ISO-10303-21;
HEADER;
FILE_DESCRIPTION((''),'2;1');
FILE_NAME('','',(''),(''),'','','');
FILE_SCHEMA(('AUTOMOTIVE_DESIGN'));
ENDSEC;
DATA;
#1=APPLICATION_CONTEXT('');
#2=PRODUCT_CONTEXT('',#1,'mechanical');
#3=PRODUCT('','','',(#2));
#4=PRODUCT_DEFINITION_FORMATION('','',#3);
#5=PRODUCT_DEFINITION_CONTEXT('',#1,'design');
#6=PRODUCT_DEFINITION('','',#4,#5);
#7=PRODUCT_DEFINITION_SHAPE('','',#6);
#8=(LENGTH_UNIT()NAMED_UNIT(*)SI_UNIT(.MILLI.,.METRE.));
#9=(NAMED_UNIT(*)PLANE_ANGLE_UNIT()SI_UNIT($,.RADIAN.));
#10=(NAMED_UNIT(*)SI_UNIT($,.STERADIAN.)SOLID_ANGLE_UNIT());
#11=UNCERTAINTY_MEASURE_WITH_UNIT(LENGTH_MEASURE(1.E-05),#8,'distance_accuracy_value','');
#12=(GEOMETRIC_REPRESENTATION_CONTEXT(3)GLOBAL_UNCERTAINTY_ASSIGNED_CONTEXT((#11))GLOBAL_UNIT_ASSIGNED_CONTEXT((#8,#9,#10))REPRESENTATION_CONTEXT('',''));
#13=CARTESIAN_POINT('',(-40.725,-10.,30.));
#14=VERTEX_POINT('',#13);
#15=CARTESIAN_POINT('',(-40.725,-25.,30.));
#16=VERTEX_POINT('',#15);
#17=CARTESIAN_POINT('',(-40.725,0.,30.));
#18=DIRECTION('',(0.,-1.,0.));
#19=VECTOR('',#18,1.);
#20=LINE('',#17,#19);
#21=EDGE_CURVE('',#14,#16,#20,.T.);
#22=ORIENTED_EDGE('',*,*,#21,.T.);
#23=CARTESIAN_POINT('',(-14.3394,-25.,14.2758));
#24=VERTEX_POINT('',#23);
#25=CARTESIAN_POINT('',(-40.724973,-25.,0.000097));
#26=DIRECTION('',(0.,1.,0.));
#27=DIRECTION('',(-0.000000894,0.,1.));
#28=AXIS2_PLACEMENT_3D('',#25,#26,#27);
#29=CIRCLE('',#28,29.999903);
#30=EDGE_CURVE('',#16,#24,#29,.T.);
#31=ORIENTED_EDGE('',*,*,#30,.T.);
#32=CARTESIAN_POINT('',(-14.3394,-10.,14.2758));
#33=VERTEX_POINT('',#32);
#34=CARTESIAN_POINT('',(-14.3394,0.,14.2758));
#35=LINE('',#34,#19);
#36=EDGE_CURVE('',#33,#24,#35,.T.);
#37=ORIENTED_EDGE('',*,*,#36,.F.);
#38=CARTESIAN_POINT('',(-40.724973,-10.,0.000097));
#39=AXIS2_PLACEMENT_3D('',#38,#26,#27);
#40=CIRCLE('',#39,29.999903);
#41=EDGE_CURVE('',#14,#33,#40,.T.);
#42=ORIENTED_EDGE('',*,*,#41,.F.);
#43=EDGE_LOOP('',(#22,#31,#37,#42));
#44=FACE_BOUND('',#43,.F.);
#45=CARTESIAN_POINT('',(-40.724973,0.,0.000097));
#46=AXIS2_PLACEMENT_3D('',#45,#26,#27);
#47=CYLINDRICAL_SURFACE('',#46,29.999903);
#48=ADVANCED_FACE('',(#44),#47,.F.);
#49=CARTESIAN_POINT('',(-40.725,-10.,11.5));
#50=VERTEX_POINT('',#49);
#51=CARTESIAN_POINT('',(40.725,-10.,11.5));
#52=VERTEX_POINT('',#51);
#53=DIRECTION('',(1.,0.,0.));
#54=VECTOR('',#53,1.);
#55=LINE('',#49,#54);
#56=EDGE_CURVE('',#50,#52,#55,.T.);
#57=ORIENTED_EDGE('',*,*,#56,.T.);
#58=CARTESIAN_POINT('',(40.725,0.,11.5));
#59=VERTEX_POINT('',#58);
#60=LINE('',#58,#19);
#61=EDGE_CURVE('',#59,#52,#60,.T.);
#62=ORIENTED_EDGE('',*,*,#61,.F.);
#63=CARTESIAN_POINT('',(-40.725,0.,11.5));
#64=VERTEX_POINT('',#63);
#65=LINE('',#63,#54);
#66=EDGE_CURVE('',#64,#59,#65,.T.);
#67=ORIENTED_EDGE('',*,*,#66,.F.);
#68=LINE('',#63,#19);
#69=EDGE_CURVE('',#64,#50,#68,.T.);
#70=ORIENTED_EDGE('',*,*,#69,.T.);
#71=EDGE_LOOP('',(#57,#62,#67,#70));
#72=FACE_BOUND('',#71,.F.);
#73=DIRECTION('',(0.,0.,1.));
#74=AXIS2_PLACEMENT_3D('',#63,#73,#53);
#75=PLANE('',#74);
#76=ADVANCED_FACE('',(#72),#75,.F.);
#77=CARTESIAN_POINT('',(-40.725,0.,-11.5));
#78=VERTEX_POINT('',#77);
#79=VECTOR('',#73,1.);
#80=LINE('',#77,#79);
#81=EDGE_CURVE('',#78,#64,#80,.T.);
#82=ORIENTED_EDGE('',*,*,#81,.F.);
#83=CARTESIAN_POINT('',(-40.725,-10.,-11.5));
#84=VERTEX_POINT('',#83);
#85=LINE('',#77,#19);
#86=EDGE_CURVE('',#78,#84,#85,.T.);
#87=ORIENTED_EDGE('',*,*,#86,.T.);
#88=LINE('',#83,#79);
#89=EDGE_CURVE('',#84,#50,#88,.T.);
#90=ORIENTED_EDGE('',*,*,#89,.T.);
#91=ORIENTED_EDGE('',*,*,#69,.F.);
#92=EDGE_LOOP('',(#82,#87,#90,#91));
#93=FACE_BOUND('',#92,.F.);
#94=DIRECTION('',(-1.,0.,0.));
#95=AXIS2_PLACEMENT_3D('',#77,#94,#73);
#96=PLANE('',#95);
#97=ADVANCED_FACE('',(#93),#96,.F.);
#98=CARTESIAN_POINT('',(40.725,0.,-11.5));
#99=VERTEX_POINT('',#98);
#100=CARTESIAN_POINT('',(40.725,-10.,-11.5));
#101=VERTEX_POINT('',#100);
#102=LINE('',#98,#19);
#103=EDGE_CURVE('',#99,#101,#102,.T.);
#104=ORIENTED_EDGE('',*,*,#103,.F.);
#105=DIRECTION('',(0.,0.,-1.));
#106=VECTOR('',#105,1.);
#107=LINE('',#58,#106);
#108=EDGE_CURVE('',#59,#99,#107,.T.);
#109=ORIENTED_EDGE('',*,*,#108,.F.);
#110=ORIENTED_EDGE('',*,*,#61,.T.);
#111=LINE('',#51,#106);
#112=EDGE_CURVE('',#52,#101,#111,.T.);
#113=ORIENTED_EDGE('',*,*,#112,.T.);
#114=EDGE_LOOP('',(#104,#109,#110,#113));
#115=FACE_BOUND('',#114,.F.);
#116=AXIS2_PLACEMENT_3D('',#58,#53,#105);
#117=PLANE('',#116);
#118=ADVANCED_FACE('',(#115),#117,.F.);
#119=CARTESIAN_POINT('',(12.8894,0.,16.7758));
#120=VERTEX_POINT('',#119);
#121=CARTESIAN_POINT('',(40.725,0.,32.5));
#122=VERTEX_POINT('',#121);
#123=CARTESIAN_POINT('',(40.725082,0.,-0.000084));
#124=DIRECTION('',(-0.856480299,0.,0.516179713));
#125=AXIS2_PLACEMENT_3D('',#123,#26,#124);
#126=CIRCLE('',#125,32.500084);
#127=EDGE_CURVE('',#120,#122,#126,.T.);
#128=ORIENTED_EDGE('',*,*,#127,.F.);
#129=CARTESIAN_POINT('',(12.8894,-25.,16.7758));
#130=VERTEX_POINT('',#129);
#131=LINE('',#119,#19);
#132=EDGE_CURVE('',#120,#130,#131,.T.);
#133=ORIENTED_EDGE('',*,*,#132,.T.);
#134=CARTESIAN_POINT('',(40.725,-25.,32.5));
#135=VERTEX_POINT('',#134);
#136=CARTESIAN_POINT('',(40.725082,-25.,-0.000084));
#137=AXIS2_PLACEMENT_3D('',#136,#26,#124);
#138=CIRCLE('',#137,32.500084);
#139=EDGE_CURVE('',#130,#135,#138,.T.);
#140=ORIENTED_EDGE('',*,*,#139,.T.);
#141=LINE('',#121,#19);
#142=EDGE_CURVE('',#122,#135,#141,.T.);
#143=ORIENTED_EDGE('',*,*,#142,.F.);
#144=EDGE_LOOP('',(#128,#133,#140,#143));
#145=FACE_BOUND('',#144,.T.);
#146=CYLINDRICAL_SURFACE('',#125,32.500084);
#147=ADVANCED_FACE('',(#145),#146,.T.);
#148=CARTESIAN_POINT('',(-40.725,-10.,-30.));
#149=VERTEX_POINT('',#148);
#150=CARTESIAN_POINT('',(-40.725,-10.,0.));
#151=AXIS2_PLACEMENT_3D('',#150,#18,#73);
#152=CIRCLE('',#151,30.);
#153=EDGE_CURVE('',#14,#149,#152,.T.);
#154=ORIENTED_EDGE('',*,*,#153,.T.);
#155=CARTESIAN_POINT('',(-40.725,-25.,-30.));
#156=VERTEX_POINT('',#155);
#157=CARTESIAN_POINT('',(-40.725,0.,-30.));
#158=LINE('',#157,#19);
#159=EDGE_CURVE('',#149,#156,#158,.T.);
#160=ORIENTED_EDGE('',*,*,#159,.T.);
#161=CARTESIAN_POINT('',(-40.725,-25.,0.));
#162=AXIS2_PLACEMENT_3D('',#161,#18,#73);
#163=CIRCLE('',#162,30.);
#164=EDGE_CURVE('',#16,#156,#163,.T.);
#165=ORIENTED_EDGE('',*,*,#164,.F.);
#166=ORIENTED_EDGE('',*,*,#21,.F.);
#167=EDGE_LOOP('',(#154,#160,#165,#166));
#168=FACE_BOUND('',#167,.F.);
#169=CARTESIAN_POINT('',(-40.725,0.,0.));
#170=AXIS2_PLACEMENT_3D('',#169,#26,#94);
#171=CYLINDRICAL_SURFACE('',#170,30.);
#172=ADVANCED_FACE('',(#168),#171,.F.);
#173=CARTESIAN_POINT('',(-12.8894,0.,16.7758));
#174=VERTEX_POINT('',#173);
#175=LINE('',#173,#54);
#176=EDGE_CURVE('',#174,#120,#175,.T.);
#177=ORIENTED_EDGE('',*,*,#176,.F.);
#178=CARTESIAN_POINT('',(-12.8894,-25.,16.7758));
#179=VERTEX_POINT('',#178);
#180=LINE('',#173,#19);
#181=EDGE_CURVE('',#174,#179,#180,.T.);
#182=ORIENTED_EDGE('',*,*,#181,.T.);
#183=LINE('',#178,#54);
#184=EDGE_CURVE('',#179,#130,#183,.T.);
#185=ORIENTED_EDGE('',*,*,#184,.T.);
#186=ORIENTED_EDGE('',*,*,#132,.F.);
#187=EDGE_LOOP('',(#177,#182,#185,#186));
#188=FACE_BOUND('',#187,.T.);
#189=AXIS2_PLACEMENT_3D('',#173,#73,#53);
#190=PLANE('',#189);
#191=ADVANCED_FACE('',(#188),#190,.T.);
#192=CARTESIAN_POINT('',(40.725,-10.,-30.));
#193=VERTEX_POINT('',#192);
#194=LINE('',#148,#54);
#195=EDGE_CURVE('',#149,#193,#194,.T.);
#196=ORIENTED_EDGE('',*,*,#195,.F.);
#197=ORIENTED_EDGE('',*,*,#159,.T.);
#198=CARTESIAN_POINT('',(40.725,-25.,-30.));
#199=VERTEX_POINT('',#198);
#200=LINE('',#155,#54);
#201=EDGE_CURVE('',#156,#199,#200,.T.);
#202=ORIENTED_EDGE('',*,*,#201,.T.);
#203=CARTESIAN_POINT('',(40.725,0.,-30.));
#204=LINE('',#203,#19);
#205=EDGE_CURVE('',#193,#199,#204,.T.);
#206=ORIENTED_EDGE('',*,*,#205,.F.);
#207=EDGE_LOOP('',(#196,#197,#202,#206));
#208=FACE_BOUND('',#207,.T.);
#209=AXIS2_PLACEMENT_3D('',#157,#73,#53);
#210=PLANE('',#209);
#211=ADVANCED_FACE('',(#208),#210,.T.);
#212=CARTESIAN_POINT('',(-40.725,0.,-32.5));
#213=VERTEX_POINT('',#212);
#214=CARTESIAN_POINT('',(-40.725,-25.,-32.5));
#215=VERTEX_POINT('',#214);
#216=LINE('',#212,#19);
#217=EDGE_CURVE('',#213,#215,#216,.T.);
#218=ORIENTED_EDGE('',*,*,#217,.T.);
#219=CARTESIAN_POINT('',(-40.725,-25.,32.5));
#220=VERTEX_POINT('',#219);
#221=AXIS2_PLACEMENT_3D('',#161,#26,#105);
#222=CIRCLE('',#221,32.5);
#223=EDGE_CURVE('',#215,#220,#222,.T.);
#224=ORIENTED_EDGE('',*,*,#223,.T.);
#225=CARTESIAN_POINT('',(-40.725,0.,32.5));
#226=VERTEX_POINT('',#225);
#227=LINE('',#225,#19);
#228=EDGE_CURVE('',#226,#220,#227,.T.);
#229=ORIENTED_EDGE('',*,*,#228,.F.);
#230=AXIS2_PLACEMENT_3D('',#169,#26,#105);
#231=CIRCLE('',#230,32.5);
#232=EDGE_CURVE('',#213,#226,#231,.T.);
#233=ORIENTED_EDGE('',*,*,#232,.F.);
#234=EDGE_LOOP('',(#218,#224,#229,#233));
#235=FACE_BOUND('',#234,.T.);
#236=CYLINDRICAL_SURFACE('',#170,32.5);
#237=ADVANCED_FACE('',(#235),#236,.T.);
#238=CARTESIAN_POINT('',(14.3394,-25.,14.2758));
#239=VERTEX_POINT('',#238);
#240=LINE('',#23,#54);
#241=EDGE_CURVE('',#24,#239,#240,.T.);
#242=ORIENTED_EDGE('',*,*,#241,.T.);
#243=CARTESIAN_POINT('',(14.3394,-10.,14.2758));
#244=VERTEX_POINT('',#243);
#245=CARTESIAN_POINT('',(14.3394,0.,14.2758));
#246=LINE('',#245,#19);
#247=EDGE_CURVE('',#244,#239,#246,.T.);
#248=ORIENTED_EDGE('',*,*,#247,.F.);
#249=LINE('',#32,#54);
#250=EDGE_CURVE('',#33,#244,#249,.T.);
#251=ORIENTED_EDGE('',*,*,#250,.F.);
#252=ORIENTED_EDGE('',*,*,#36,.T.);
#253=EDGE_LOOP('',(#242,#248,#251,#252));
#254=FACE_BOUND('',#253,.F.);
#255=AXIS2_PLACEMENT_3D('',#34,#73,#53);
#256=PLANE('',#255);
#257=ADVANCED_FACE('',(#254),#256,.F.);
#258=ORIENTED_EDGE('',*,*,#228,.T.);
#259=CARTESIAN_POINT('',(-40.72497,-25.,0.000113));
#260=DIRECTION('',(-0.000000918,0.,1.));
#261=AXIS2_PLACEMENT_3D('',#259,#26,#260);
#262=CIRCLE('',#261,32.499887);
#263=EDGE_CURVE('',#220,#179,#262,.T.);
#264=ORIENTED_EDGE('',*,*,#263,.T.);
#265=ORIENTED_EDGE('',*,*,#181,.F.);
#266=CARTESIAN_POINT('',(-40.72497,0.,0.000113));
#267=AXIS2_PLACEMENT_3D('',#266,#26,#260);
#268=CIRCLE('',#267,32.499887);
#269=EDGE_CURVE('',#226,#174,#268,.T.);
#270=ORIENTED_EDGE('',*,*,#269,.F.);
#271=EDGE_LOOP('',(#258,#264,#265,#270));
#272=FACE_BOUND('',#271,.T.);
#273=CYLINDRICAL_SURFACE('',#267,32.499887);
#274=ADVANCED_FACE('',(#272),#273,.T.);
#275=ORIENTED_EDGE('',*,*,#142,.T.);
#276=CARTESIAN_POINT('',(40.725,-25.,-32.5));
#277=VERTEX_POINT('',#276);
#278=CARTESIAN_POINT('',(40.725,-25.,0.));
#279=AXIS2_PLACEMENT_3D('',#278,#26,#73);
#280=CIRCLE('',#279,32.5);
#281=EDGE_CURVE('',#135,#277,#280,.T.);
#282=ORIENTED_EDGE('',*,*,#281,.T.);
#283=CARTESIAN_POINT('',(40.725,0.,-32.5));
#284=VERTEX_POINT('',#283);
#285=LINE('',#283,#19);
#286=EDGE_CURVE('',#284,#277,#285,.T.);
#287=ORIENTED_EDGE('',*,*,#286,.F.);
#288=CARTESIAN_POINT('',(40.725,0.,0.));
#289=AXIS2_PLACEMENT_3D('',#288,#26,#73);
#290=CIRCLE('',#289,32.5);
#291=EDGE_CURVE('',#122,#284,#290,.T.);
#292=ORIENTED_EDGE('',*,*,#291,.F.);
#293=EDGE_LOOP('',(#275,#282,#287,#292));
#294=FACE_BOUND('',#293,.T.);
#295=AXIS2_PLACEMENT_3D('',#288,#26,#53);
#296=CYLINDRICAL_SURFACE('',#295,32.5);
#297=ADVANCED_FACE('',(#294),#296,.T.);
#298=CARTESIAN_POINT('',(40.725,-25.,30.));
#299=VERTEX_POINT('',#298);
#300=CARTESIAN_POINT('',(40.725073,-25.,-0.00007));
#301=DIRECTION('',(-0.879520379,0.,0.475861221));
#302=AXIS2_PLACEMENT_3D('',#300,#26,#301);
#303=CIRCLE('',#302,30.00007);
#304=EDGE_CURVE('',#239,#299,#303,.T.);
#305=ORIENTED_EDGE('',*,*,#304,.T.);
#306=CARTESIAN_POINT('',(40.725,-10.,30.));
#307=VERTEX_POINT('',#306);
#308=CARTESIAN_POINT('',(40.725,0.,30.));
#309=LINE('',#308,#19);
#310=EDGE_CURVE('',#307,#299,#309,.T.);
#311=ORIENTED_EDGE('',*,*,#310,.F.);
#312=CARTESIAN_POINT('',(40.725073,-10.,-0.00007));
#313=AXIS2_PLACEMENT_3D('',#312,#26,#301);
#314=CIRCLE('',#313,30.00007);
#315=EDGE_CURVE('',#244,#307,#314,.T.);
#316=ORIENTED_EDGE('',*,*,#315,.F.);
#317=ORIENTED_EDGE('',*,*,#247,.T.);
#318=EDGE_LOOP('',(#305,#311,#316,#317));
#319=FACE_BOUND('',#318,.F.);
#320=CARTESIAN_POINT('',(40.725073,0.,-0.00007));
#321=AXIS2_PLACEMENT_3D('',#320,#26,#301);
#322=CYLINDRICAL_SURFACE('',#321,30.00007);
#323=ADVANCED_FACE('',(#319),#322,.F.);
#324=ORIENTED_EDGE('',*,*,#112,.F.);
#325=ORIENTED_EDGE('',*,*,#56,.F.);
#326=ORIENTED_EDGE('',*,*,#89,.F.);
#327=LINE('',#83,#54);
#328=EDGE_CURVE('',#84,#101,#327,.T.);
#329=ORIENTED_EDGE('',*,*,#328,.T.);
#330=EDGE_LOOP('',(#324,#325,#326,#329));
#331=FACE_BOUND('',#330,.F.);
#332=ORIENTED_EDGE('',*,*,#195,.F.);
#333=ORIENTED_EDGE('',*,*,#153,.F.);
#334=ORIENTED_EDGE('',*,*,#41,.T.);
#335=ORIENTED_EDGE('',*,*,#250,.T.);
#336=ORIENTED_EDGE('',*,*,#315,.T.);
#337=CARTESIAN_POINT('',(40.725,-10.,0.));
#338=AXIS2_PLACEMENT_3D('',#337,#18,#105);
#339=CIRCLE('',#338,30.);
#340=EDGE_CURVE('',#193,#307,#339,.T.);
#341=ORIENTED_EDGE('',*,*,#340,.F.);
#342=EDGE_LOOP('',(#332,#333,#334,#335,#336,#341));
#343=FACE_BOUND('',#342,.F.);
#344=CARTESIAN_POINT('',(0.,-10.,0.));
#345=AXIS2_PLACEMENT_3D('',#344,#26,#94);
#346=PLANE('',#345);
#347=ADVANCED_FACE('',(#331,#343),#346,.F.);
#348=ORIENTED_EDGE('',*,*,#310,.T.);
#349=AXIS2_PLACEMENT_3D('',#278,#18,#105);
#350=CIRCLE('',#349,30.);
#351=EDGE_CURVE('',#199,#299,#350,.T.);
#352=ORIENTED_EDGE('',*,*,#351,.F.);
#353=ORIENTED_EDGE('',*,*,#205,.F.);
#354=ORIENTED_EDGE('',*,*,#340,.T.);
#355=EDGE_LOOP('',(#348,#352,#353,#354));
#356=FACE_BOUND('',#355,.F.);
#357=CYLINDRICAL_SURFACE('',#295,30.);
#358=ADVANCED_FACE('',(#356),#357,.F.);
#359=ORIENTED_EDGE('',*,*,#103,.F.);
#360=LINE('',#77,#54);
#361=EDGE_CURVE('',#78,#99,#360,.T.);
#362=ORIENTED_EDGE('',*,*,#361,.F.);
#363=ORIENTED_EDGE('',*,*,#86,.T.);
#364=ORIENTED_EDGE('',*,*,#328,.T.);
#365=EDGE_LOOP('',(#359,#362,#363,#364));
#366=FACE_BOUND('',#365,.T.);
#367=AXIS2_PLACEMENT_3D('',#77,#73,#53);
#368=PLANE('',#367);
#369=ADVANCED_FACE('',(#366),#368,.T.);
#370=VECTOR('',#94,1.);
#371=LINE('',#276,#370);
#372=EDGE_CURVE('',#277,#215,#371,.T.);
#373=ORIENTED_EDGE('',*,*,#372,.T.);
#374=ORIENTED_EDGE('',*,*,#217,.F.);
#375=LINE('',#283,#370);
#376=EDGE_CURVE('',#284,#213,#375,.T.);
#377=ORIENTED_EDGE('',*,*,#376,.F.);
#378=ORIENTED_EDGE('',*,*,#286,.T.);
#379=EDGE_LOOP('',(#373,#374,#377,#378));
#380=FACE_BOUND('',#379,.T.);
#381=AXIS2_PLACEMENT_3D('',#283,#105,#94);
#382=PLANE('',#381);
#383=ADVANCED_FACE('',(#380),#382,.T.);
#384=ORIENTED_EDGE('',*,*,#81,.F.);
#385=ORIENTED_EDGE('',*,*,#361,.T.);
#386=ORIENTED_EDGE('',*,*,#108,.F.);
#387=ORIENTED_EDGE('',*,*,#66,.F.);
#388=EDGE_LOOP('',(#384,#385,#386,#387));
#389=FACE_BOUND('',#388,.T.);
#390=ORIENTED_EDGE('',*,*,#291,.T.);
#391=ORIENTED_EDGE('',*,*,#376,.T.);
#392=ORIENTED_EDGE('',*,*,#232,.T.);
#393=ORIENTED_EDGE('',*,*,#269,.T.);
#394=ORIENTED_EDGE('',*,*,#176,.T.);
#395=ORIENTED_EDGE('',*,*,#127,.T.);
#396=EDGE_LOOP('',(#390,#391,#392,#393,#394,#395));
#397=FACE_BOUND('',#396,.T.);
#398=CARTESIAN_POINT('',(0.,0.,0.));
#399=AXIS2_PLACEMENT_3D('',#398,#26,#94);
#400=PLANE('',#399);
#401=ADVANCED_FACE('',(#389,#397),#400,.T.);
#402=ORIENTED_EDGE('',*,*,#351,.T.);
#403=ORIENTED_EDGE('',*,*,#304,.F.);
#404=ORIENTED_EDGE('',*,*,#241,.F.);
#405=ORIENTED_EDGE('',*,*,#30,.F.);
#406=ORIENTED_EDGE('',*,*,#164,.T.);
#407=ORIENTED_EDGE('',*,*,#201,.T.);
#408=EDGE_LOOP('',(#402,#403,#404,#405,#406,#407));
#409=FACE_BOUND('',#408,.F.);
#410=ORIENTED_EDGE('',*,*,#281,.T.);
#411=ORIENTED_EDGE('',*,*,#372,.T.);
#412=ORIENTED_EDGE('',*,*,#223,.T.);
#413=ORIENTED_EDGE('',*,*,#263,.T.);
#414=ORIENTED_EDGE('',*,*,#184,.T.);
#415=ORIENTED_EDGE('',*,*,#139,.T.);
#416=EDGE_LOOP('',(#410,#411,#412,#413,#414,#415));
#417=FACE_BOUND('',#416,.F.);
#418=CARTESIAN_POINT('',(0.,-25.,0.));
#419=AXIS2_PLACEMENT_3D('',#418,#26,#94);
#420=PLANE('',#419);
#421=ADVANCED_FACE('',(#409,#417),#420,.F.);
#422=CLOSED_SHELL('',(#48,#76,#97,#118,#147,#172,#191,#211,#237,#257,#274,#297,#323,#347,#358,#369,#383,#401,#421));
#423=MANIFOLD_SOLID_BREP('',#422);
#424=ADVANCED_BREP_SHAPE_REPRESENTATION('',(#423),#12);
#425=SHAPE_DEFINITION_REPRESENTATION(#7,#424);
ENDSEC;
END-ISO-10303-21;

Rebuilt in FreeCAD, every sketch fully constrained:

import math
import FreeCAD as App
import Part
import Sketcher
from FreeCAD import Vector

doc = App.newDocument("Part")
body = doc.addObject("PartDesign::Body", "Body")

# Sketch on XZ plane
sketch1 = body.newObject("Sketcher::SketchObject", "Sketch")
sketch1.AttachmentSupport = (doc.getObject("XZ_Plane"), [""])
sketch1.MapMode = "FlatFace"
sketch1.addGeometry([
    Part.LineSegment(Vector(41, -30, 0), Vector(-41, -30, 0)),  # 0
    Part.ArcOfCircle(Part.Circle(Vector(-41, 0, 0), Vector(0, 0, 1), 30), math.radians(90), math.radians(270)),  # 1
    Part.ArcOfCircle(Part.Circle(Vector(-41, 0, 0), Vector(0, 0, 1), 30), math.radians(28), math.radians(90)),  # 2
    Part.LineSegment(Vector(-14, 14, 0), Vector(14, 14, 0)),  # 3
    Part.ArcOfCircle(Part.Circle(Vector(41, 0, 0), Vector(0, 0, 1), 30), math.radians(90), math.radians(152)),  # 4
    Part.ArcOfCircle(Part.Circle(Vector(41, 0, 0), Vector(0, 0, 1), 30), math.radians(-90), math.radians(90)),  # 5
    Part.LineSegment(Vector(-41, 12, 0), Vector(-41, -12, 0)),  # 6
    Part.LineSegment(Vector(-41, -12, 0), Vector(41, -12, 0)),  # 7
    Part.LineSegment(Vector(41, -12, 0), Vector(41, 12, 0)),  # 8
    Part.LineSegment(Vector(41, 12, 0), Vector(-41, 12, 0)),  # 9
], False)
sketch1.addConstraint([
    Sketcher.Constraint("Tangent", 0, 2, 1, 2),
    Sketcher.Constraint("Tangent", 1, 1, 2, 2),
    Sketcher.Constraint("Coincident", 2, 1, 3, 1),
    Sketcher.Constraint("Coincident", 3, 2, 4, 2),
    Sketcher.Constraint("Tangent", 4, 1, 5, 2),
    Sketcher.Constraint("Tangent", 5, 1, 0, 1),
    Sketcher.Constraint("Coincident", 6, 2, 7, 1),
    Sketcher.Constraint("Coincident", 7, 2, 8, 1),
    Sketcher.Constraint("Coincident", 8, 2, 9, 1),
    Sketcher.Constraint("Coincident", 9, 2, 6, 1),
    Sketcher.Constraint("Horizontal", 0),
    Sketcher.Constraint("Horizontal", 3),
    Sketcher.Constraint("Vertical", 6),
    Sketcher.Constraint("Horizontal", 7),
    Sketcher.Constraint("Vertical", 8),
    Sketcher.Constraint("Horizontal", 9),
    Sketcher.Constraint("Equal", 1, 2),
    Sketcher.Constraint("Equal", 2, 4),
    Sketcher.Constraint("Equal", 4, 5),
    Sketcher.Constraint("Symmetric", 1, 3, 4, 3, -1, 1),
    Sketcher.Constraint("Symmetric", 6, 2, 8, 2, -1, 1),
    Sketcher.Constraint("Vertical", 0, 2, 1, 1),
    Sketcher.Constraint("Vertical", 5, 3, 4, 1),
    Sketcher.Constraint("Vertical", 1, 1, 6, 2),
    Sketcher.Constraint("Radius", 1, 30.0),
    Sketcher.Constraint("DistanceY", 6, 2, -1, 1, 11.5),
    Sketcher.Constraint("DistanceX", 1, 3, -1, 1, 40.725),
    Sketcher.Constraint("DistanceY", 2, 1, 1, 1, 15.7242),
])
pad1 = body.newObject("PartDesign::Pad", "Pad")
pad1.Profile = sketch1
pad1.Length = 10

# Sketch on XZ plane
sketch2 = body.newObject("Sketcher::SketchObject", "Sketch001")
sketch2.AttachmentSupport = (doc.getObject("XZ_Plane"), [""])
sketch2.MapMode = "FlatFace"
sketch2.addGeometry([
    Part.ArcOfCircle(Part.Circle(Vector(-41, 0, 0), Vector(0, 0, 1), 32), math.radians(90), math.radians(270)),  # 0
    Part.ArcOfCircle(Part.Circle(Vector(-41, 0, 0), Vector(0, 0, 1), 32), math.radians(31), math.radians(90)),  # 1
    Part.LineSegment(Vector(-13, 17, 0), Vector(13, 17, 0)),  # 2
    Part.ArcOfCircle(Part.Circle(Vector(41, 0, 0), Vector(0, 0, 1), 32), math.radians(90), math.radians(149)),  # 3
    Part.ArcOfCircle(Part.Circle(Vector(41, 0, 0), Vector(0, 0, 1), 32), math.radians(-90), math.radians(90)),  # 4
    Part.LineSegment(Vector(41, -32, 0), Vector(-41, -32, 0)),  # 5
    Part.ArcOfCircle(Part.Circle(Vector(-41, 0, 0), Vector(0, 0, 1), 30), math.radians(90), math.radians(270)),  # 6
    Part.LineSegment(Vector(-41, -30, 0), Vector(41, -30, 0)),  # 7
    Part.ArcOfCircle(Part.Circle(Vector(41, 0, 0), Vector(0, 0, 1), 30), math.radians(-90), math.radians(90)),  # 8
    Part.ArcOfCircle(Part.Circle(Vector(41, 0, 0), Vector(0, 0, 1), 30), math.radians(90), math.radians(152)),  # 9
    Part.LineSegment(Vector(14, 14, 0), Vector(-14, 14, 0)),  # 10
    Part.ArcOfCircle(Part.Circle(Vector(-41, 0, 0), Vector(0, 0, 1), 30), math.radians(28), math.radians(90)),  # 11
], False)
sketch2.addConstraint([
    Sketcher.Constraint("Tangent", 0, 1, 1, 2),
    Sketcher.Constraint("Coincident", 1, 1, 2, 1),
    Sketcher.Constraint("Coincident", 2, 2, 3, 2),
    Sketcher.Constraint("Tangent", 3, 1, 4, 2),
    Sketcher.Constraint("Tangent", 4, 1, 5, 1),
    Sketcher.Constraint("Tangent", 5, 2, 0, 2),
    Sketcher.Constraint("Tangent", 6, 2, 7, 1),
    Sketcher.Constraint("Tangent", 7, 2, 8, 1),
    Sketcher.Constraint("Tangent", 8, 2, 9, 1),
    Sketcher.Constraint("Coincident", 9, 2, 10, 1),
    Sketcher.Constraint("Coincident", 10, 2, 11, 1),
    Sketcher.Constraint("Tangent", 11, 2, 6, 1),
    Sketcher.Constraint("Horizontal", 2),
    Sketcher.Constraint("Horizontal", 5),
    Sketcher.Constraint("Horizontal", 7),
    Sketcher.Constraint("Horizontal", 10),
    Sketcher.Constraint("Coincident", 6, 3, 0, 3),
    Sketcher.Constraint("Coincident", 8, 3, 3, 3),
    Sketcher.Constraint("Equal", 0, 1),
    Sketcher.Constraint("Equal", 1, 3),
    Sketcher.Constraint("Equal", 3, 4),
    Sketcher.Constraint("Equal", 8, 9),
    Sketcher.Constraint("Equal", 9, 11),
    Sketcher.Constraint("Symmetric", 0, 3, 3, 3, -1, 1),
    Sketcher.Constraint("Vertical", 11, 3, 0, 1),
    Sketcher.Constraint("Vertical", 9, 3, 3, 1),
    Sketcher.Constraint("Vertical", 7, 2, 8, 2),
    Sketcher.Constraint("Vertical", 6, 2, 11, 2),
    Sketcher.Constraint("Radius", 6, 30.0),
    Sketcher.Constraint("Radius", 0, 32.5),
    Sketcher.Constraint("DistanceX", 0, 3, -1, 1, 40.725),
    Sketcher.Constraint("DistanceY", 1, 1, 0, 1, 15.7242),
    Sketcher.Constraint("DistanceY", 9, 2, 2, 2, 2.5),
])
pad2 = body.newObject("PartDesign::Pad", "Pad001")
pad2.Profile = sketch2
pad2.Length = 25

doc.recompute()
